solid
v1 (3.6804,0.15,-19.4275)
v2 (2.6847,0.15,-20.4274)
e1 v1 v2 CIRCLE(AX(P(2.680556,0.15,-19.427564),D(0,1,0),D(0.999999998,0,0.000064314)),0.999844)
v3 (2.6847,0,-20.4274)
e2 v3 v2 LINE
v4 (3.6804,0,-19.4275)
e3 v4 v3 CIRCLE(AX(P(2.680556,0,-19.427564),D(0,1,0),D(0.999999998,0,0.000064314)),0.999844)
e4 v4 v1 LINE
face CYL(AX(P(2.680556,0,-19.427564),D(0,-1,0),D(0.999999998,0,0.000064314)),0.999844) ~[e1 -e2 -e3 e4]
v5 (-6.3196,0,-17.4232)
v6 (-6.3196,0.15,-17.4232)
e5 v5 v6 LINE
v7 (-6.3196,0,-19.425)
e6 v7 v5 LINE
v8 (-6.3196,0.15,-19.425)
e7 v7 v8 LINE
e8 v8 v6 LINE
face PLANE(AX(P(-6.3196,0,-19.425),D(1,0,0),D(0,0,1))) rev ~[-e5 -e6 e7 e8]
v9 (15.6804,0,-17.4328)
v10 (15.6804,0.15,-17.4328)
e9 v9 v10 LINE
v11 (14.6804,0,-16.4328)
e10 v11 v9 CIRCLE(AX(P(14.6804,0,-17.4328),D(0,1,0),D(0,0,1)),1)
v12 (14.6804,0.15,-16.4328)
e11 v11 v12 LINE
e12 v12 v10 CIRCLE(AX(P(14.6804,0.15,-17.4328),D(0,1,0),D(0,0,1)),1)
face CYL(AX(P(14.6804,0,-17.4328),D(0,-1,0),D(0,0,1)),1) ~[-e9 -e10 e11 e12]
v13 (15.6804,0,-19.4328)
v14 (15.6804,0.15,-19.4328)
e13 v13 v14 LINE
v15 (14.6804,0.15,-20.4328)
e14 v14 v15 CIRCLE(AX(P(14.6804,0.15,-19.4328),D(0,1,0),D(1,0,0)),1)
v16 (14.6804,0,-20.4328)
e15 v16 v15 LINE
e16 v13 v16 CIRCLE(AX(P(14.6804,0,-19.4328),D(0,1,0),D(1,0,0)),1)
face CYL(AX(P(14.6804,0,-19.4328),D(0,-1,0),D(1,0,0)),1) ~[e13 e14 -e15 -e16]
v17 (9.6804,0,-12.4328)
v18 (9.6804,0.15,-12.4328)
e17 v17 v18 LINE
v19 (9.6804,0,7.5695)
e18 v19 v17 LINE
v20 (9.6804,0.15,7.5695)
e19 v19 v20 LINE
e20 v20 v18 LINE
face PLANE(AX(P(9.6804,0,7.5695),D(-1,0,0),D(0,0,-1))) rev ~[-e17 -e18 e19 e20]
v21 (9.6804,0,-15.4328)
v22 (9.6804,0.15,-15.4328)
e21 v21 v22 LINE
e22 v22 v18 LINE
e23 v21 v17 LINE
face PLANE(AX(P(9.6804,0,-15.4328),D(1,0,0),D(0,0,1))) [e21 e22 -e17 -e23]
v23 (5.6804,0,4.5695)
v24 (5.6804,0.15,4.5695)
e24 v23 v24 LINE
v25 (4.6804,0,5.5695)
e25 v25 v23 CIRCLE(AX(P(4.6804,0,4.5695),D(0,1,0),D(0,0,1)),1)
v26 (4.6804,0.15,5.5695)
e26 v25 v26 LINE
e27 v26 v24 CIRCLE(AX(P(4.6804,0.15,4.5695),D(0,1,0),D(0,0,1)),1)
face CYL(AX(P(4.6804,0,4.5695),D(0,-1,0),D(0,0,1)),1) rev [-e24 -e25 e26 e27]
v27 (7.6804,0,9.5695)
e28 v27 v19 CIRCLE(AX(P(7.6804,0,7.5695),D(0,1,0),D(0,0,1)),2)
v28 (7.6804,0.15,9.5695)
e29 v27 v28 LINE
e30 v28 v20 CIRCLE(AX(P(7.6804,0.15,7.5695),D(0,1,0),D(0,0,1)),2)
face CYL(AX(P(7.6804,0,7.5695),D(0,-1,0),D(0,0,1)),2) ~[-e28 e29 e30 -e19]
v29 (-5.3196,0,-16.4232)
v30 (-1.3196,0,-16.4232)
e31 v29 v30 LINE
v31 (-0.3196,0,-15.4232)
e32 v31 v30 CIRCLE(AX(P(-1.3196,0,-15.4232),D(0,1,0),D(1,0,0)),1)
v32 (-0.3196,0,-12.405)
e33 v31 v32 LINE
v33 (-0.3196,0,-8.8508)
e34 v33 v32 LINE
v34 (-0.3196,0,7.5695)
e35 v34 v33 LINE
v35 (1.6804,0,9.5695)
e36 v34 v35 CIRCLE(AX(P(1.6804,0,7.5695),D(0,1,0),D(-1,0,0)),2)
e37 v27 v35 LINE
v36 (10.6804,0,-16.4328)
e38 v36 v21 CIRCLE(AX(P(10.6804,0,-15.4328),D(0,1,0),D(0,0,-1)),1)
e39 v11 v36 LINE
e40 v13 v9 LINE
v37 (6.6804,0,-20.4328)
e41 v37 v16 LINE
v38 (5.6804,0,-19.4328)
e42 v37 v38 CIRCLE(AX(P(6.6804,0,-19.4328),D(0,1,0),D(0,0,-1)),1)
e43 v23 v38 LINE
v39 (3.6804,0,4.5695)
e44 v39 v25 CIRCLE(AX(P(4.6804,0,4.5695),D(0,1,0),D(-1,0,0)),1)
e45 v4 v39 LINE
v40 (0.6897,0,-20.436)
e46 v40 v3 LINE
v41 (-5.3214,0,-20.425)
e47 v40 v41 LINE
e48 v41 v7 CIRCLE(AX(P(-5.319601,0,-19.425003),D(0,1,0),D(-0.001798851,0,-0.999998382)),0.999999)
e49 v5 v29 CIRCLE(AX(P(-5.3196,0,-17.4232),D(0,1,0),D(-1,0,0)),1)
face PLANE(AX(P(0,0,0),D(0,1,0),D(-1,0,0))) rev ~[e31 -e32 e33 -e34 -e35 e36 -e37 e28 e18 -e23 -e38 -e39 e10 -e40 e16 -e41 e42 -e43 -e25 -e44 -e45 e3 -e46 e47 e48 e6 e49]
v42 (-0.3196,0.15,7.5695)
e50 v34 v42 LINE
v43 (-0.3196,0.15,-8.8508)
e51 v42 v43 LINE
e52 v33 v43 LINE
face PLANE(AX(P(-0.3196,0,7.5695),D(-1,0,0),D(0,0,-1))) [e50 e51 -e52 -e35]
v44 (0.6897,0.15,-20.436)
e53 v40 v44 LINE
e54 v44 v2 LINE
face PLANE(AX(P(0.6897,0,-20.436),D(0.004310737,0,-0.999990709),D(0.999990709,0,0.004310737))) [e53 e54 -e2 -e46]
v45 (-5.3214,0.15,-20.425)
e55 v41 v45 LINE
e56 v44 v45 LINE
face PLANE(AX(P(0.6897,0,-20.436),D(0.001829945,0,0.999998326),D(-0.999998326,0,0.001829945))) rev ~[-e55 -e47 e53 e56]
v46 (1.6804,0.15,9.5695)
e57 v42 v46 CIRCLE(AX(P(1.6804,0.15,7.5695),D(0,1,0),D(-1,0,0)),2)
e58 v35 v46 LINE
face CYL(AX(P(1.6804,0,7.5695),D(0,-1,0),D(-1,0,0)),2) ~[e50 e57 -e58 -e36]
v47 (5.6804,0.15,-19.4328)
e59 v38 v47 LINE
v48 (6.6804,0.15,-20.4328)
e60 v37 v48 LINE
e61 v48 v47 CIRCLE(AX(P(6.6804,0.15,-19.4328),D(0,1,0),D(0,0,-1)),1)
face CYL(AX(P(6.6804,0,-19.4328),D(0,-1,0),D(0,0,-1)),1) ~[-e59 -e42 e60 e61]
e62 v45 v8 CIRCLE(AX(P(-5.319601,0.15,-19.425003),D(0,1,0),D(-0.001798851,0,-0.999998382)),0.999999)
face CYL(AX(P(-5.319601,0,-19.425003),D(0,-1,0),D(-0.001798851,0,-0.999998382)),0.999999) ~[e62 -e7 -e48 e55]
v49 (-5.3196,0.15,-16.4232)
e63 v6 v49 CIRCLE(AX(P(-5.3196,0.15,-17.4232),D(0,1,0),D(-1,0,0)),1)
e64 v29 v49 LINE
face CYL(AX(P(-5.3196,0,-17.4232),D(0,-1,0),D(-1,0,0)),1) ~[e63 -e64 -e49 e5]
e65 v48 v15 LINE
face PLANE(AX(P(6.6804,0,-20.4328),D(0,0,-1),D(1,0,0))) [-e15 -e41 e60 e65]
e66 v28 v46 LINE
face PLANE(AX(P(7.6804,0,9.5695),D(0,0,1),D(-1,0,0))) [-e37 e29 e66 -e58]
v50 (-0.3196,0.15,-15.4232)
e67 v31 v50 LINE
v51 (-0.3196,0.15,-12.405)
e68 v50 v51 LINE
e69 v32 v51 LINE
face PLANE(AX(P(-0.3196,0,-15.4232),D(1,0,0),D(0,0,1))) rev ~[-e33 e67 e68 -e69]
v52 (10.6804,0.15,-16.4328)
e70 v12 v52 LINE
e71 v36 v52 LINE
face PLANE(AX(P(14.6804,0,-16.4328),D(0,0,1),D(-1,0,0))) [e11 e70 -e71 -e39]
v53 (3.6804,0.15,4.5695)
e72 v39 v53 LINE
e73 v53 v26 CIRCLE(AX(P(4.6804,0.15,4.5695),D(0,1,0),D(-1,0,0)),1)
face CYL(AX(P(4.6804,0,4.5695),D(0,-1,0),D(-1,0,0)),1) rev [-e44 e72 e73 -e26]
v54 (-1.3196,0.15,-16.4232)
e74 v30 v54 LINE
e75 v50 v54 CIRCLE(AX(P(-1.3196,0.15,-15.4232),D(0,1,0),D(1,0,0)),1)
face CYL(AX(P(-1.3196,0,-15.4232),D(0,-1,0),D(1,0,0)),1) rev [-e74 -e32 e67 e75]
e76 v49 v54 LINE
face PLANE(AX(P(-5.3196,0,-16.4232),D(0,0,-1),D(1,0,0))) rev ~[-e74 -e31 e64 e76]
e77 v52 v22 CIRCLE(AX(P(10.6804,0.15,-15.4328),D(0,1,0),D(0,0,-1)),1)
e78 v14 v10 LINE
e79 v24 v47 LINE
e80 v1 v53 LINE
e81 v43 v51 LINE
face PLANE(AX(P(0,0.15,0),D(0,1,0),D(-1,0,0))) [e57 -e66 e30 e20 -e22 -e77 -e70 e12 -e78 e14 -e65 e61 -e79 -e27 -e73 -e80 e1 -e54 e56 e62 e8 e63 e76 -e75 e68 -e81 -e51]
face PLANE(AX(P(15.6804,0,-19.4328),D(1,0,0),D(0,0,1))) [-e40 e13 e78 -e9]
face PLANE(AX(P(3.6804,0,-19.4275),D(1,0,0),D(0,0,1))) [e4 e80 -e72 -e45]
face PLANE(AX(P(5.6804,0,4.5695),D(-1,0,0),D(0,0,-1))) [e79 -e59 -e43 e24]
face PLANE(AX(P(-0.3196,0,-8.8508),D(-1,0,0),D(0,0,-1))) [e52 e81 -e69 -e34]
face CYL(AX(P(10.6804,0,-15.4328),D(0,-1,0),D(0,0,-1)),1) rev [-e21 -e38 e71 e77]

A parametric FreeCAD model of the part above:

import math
import FreeCAD as App
import Part
import Sketcher

doc = App.newDocument("Part")
body = doc.addObject("PartDesign::Body", "Body")

# Sketch on XZ plane
sketch1 = body.newObject("Sketcher::SketchObject", "Sketch")
sketch1.AttachmentSupport = (doc.getObject("XZ_Plane"), [""])
sketch1.MapMode = "FlatFace"
sketch1.addGeometry(Part.LineSegment(App.Vector(1.7, 9.6, 0), App.Vector(7.7, 9.6, 0)), False)
sketch1.addGeometry(Part.ArcOfCircle(Part.Circle(App.Vector(7.7, 7.6, 0), App.Vector(0, 0, 1), 2), math.radians(0), math.radians(90)), False)
sketch1.addGeometry(Part.LineSegment(App.Vector(9.7, 7.6, 0), App.Vector(9.7, -15.4, 0)), False)
sketch1.addGeometry(Part.ArcOfCircle(Part.Circle(App.Vector(10.7, -15.4, 0), App.Vector(0, 0, 1), 1), math.radians(180), math.radians(270)), False)
sketch1.addGeometry(Part.LineSegment(App.Vector(10.7, -16.4, 0), App.Vector(14.7, -16.4, 0)), False)
sketch1.addGeometry(Part.ArcOfCircle(Part.Circle(App.Vector(14.7, -17.4, 0), App.Vector(0, 0, 1), 1), math.radians(0), math.radians(90)), False)
sketch1.addGeometry(Part.LineSegment(App.Vector(15.7, -17.4, 0), App.Vector(15.7, -19.4, 0)), False)
sketch1.addGeometry(Part.ArcOfCircle(Part.Circle(App.Vector(14.7, -19.4, 0), App.Vector(0, 0, 1), 1), math.radians(-90), math.radians(0)), False)
sketch1.addGeometry(Part.LineSegment(App.Vector(14.7, -20.4, 0), App.Vector(6.7, -20.4, 0)), False)
sketch1.addGeometry(Part.ArcOfCircle(Part.Circle(App.Vector(6.7, -19.4, 0), App.Vector(0, 0, 1), 1), math.radians(180), math.radians(270)), False)
sketch1.addGeometry(Part.LineSegment(App.Vector(5.7, -19.4, 0), App.Vector(5.7, 4.6, 0)), False)
sketch1.addGeometry(Part.ArcOfCircle(Part.Circle(App.Vector(4.7, 4.6, 0), App.Vector(0, 0, 1), 1), math.radians(0), math.radians(180)), False)
sketch1.addGeometry(Part.LineSegment(App.Vector(3.7, 4.6, 0), App.Vector(3.7, -19.4, 0)), False)
sketch1.addGeometry(Part.ArcOfCircle(Part.Circle(App.Vector(2.7, -19.4, 0), App.Vector(0, 0, 1), 1), math.radians(-90), math.radians(0)), False)
sketch1.addGeometry(Part.LineSegment(App.Vector(2.7, -20.4, 0), App.Vector(0.7, -20.4, 0)), False)
sketch1.addGeometry(Part.LineSegment(App.Vector(0.7, -20.4, 0), App.Vector(-5.3, -20.4, 0)), False)
sketch1.addGeometry(Part.ArcOfCircle(Part.Circle(App.Vector(-5.3, -19.4, 0), App.Vector(0, 0, 1), 1), math.radians(180), math.radians(270)), False)
sketch1.addGeometry(Part.LineSegment(App.Vector(-6.3, -19.4, 0), App.Vector(-6.3, -17.4, 0)), False)
sketch1.addGeometry(Part.ArcOfCircle(Part.Circle(App.Vector(-5.3, -17.4, 0), App.Vector(0, 0, 1), 1), math.radians(90), math.radians(180)), False)
sketch1.addGeometry(Part.LineSegment(App.Vector(-5.3, -16.4, 0), App.Vector(-1.3, -16.4, 0)), False)
sketch1.addGeometry(Part.ArcOfCircle(Part.Circle(App.Vector(-1.3, -15.4, 0), App.Vector(0, 0, 1), 1), math.radians(-90), math.radians(0)), False)
sketch1.addGeometry(Part.LineSegment(App.Vector(-0.3, -15.4, 0), App.Vector(-0.3, 7.6, 0)), False)
sketch1.addGeometry(Part.ArcOfCircle(Part.Circle(App.Vector(1.7, 7.6, 0), App.Vector(0, 0, 1), 2), math.radians(90), math.radians(180)), False)
sketch1.addConstraint(Sketcher.Constraint("Tangent", 0, 2, 1, 2))
sketch1.addConstraint(Sketcher.Constraint("Tangent", 1, 1, 2, 1))
sketch1.addConstraint(Sketcher.Constraint("Tangent", 2, 2, 3, 1))
sketch1.addConstraint(Sketcher.Constraint("Tangent", 3, 2, 4, 1))
sketch1.addConstraint(Sketcher.Constraint("Tangent", 4, 2, 5, 2))
sketch1.addConstraint(Sketcher.Constraint("Tangent", 5, 1, 6, 1))
sketch1.addConstraint(Sketcher.Constraint("Tangent", 6, 2, 7, 2))
sketch1.addConstraint(Sketcher.Constraint("Tangent", 7, 1, 8, 1))
sketch1.addConstraint(Sketcher.Constraint("Tangent", 8, 2, 9, 2))
sketch1.addConstraint(Sketcher.Constraint("Tangent", 9, 1, 10, 1))
sketch1.addConstraint(Sketcher.Constraint("Tangent", 10, 2, 11, 1))
sketch1.addConstraint(Sketcher.Constraint("Tangent", 11, 2, 12, 1))
sketch1.addConstraint(Sketcher.Constraint("Tangent", 12, 2, 13, 2))
sketch1.addConstraint(Sketcher.Constraint("Tangent", 13, 1, 14, 1))
sketch1.addConstraint(Sketcher.Constraint("Coincident", 14, 2, 15, 1))
sketch1.addConstraint(Sketcher.Constraint("Tangent", 15, 2, 16, 2))
sketch1.addConstraint(Sketcher.Constraint("Tangent", 16, 1, 17, 1))
sketch1.addConstraint(Sketcher.Constraint("Tangent", 17, 2, 18, 2))
sketch1.addConstraint(Sketcher.Constraint("Tangent", 18, 1, 19, 1))
sketch1.addConstraint(Sketcher.Constraint("Tangent", 19, 2, 20, 1))
sketch1.addConstraint(Sketcher.Constraint("Tangent", 20, 2, 21, 1))
sketch1.addConstraint(Sketcher.Constraint("Tangent", 21, 2, 22, 2))
sketch1.addConstraint(Sketcher.Constraint("Tangent", 22, 1, 0, 1))
sketch1.addConstraint(Sketcher.Constraint("Horizontal", 0))
sketch1.addConstraint(Sketcher.Constraint("Vertical", 2))
sketch1.addConstraint(Sketcher.Constraint("Horizontal", 4))
sketch1.addConstraint(Sketcher.Constraint("Vertical", 6))
sketch1.addConstraint(Sketcher.Constraint("Horizontal", 8))
sketch1.addConstraint(Sketcher.Constraint("Vertical", 10))
sketch1.addConstraint(Sketcher.Constraint("Vertical", 12))
sketch1.addConstraint(Sketcher.Constraint("Vertical", 17))
sketch1.addConstraint(Sketcher.Constraint("Horizontal", 19))
sketch1.addConstraint(Sketcher.Constraint("Vertical", 21))
sketch1.addConstraint(Sketcher.Constraint("Equal", 3, 5))
sketch1.addConstraint(Sketcher.Constraint("Equal", 5, 7))
sketch1.addConstraint(Sketcher.Constraint("Equal", 7, 9))
sketch1.addConstraint(Sketcher.Constraint("Equal", 9, 11))
sketch1.addConstraint(Sketcher.Constraint("Equal", 11, 13))
sketch1.addConstraint(Sketcher.Constraint("Equal", 13, 16))
sketch1.addConstraint(Sketcher.Constraint("Equal", 16, 18))
sketch1.addConstraint(Sketcher.Constraint("Equal", 18, 20))
sketch1.addConstraint(Sketcher.Constraint("Equal", 1, 22))
sketch1.addConstraint(Sketcher.Constraint("Equal", 4, 19))
sketch1.addConstraint(Sketcher.Constraint("Radius", 1, 2.0))
sketch1.addConstraint(Sketcher.Constraint("Radius", 3, 1.0))
sketch1.addConstraint(Sketcher.Constraint("DistanceX", 4, 1, 4, 2, 4.0))
sketch1.addConstraint(Sketcher.Constraint("DistanceY", 6, 2, 6, 1, 2.0))
sketch1.addConstraint(Sketcher.Constraint("DistanceX", 9, 3, 3, 3, 4.0))
sketch1.addConstraint(Sketcher.Constraint("DistanceX", 20, 3, 13, 3, 4.0))
sketch1.addConstraint(Sketcher.Constraint("DistanceY", 11, 3, 1, 3, 3.0))
sketch1.addConstraint(Sketcher.Constraint("DistanceY", 12, 2, 12, 1, 23.997))
sketch1.addConstraint(Sketcher.Constraint("Distance", 14, 1.995))
sketch1.addConstraint(Sketcher.Constraint("Distance", 15, 6.011))
sketch1.addConstraint(Sketcher.Constraint("DistanceY", 2, 2, 2, 1, 23.0023))
sketch1.addConstraint(Sketcher.Constraint("DistanceY", 17, 1, 17, 2, 2.0018))
sketch1.addConstraint(Sketcher.Constraint("DistanceY", 21, 1, 21, 2, 22.9927))
sketch1.addConstraint(Sketcher.Constraint("DistanceY", 16, 3, -1, 1, 19.425))
sketch1.addConstraint(Sketcher.Constraint("DistanceX", -1, 1, 1, 3, 7.6804))
pad1 = body.newObject("PartDesign::Pad", "Pad")
pad1.Profile = sketch1
pad1.Length = 0.15
pad1.Reversed = True

doc.recompute()
